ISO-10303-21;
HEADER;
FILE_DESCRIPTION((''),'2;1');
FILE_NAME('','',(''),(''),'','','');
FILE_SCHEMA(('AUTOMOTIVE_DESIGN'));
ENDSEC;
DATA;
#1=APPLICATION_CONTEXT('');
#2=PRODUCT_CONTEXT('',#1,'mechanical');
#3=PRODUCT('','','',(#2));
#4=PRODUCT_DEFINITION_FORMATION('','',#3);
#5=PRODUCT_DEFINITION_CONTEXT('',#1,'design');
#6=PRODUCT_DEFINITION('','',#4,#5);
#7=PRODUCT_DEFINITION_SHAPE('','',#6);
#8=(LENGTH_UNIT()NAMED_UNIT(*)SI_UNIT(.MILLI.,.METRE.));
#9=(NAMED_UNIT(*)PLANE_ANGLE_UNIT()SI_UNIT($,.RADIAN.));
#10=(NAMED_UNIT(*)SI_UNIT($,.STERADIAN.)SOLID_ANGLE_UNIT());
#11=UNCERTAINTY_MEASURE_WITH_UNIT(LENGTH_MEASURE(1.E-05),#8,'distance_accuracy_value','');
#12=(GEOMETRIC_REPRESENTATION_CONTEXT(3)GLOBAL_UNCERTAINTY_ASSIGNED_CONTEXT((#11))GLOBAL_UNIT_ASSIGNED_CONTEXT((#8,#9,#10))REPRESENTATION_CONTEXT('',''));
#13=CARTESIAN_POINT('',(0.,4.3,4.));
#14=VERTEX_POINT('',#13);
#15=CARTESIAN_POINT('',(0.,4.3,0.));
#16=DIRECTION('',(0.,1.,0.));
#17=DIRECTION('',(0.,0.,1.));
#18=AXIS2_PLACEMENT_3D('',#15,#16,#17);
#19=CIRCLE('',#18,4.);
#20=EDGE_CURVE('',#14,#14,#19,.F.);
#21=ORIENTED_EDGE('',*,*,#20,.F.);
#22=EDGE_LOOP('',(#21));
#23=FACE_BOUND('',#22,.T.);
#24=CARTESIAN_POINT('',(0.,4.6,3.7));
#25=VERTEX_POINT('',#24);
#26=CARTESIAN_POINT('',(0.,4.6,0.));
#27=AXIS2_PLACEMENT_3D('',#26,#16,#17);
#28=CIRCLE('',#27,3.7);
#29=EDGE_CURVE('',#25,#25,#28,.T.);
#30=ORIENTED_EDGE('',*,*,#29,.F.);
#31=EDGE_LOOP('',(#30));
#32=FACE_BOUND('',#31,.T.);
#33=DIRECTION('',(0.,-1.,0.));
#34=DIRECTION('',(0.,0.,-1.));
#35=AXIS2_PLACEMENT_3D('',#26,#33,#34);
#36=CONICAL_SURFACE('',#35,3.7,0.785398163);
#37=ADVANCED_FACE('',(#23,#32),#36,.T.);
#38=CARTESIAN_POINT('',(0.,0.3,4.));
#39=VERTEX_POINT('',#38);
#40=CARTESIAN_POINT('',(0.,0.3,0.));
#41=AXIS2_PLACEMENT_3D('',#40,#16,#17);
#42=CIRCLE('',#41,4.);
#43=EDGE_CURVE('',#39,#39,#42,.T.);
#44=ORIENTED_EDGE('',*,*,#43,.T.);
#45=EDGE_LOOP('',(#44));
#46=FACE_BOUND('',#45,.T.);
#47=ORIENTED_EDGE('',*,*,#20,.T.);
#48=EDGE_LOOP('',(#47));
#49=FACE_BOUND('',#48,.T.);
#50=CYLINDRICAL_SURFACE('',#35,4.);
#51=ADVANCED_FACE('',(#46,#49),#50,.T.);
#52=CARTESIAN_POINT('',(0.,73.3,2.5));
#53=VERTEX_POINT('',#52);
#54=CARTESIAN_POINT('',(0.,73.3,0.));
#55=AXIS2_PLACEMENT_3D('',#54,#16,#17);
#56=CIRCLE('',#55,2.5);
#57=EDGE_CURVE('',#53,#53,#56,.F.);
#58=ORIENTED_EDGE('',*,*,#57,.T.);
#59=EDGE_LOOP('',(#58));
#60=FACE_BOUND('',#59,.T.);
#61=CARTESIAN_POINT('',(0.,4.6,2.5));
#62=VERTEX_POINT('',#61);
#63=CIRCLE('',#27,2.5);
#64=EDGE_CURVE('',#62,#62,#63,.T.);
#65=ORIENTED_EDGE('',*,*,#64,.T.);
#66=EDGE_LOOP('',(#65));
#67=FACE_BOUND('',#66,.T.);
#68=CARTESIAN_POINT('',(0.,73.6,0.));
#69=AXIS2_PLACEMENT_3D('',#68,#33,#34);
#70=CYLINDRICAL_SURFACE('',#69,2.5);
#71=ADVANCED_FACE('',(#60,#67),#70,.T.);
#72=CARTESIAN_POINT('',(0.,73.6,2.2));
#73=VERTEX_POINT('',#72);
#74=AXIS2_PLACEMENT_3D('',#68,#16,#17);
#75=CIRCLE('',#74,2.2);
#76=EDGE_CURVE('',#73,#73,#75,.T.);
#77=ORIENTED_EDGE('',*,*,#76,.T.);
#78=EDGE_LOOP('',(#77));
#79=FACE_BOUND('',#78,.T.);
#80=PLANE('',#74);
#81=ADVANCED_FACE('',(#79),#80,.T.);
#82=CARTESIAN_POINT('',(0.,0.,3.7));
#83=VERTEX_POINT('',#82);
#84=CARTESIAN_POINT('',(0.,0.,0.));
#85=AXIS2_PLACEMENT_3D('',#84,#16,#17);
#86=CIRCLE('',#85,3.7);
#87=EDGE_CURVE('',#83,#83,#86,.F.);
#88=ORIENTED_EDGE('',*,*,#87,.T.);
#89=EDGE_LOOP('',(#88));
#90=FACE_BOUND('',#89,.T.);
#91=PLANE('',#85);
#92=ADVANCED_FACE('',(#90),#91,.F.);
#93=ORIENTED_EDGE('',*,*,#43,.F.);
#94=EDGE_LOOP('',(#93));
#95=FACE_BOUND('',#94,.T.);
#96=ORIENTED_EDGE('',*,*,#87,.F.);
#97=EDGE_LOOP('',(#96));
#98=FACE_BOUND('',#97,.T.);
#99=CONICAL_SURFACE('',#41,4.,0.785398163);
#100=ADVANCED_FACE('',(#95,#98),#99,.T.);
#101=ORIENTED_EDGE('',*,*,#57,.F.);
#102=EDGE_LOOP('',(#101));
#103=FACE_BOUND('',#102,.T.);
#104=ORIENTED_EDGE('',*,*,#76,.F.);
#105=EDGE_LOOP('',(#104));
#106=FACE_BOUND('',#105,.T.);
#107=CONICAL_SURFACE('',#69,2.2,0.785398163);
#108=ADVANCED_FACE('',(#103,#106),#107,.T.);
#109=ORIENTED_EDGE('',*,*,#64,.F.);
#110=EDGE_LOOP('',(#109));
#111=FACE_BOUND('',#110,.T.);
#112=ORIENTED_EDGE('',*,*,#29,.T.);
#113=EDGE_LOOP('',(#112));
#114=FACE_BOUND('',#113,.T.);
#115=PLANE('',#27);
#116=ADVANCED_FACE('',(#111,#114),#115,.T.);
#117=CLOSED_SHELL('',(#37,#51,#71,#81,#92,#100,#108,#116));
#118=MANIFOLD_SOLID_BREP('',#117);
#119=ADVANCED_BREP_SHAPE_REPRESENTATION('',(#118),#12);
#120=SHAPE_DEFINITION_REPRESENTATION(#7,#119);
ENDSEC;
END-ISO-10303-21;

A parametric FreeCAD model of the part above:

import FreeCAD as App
import Part
import Sketcher
from FreeCAD import Vector
Q = App.Units.Quantity


def edges_at(feature, points):
    """Names of the edges that pass closest to the given points."""
    edges = feature.Shape.Edges
    near = lambda p: min(range(len(edges)), key=lambda i: edges[i].distToShape(Part.Vertex(*p))[0])
    return sorted({f"Edge{near(p) + 1}" for p in points})

doc = App.newDocument("Part")
body = doc.addObject("PartDesign::Body", "Body")

# Sketch on XZ plane
sketch1 = body.newObject("Sketcher::SketchObject", "Sketch")
sketch1.AttachmentSupport = (doc.getObject("XZ_Plane"), [""])
sketch1.MapMode = "FlatFace"
sketch1.addGeometry(Part.Circle(Vector(0, 0, 0), Vector(0, 0, 1), 4), False)
sketch1.addConstraint([
    Sketcher.Constraint("Coincident", 0, 3, -1, 1),
    Sketcher.Constraint("Diameter", 0, Q("8 mm")),
])
pad1 = body.newObject("PartDesign::Pad", "Pad")
pad1.Profile = sketch1
pad1.Length = 4.6
pad1.Reversed = True

# Sketch on XZ plane
sketch2 = body.newObject("Sketcher::SketchObject", "Sketch001")
sketch2.AttachmentSupport = (doc.getObject("XZ_Plane"), [""])
sketch2.MapMode = "FlatFace"
sketch2.AttachmentOffset = App.Placement(Vector(0, 0, -4.6), App.Rotation())
sketch2.addGeometry(Part.Circle(Vector(0, 0, 0), Vector(0, 0, 1), 2.5), False)
sketch2.addConstraint([
    Sketcher.Constraint("Coincident", 0, 3, -1, 1),
    Sketcher.Constraint("Diameter", 0, Q("5 mm")),
])
pad2 = body.newObject("PartDesign::Pad", "Pad001")
pad2.Profile = sketch2
pad2.Length = 69
pad2.Reversed = True
doc.recompute()

chamfer = body.newObject("PartDesign::Chamfer", "Chamfer")
chamfer.Base = (pad2, edges_at(pad2, [(0, 0, -4), (0, 4.6, -4)]))
chamfer.Size = 0.3
doc.recompute()

chamfer2 = body.newObject("PartDesign::Chamfer", "Chamfer001")
chamfer2.Base = (chamfer, edges_at(chamfer, [(0, 73.6, -2.5)]))
chamfer2.Size = 0.3

doc.recompute()
